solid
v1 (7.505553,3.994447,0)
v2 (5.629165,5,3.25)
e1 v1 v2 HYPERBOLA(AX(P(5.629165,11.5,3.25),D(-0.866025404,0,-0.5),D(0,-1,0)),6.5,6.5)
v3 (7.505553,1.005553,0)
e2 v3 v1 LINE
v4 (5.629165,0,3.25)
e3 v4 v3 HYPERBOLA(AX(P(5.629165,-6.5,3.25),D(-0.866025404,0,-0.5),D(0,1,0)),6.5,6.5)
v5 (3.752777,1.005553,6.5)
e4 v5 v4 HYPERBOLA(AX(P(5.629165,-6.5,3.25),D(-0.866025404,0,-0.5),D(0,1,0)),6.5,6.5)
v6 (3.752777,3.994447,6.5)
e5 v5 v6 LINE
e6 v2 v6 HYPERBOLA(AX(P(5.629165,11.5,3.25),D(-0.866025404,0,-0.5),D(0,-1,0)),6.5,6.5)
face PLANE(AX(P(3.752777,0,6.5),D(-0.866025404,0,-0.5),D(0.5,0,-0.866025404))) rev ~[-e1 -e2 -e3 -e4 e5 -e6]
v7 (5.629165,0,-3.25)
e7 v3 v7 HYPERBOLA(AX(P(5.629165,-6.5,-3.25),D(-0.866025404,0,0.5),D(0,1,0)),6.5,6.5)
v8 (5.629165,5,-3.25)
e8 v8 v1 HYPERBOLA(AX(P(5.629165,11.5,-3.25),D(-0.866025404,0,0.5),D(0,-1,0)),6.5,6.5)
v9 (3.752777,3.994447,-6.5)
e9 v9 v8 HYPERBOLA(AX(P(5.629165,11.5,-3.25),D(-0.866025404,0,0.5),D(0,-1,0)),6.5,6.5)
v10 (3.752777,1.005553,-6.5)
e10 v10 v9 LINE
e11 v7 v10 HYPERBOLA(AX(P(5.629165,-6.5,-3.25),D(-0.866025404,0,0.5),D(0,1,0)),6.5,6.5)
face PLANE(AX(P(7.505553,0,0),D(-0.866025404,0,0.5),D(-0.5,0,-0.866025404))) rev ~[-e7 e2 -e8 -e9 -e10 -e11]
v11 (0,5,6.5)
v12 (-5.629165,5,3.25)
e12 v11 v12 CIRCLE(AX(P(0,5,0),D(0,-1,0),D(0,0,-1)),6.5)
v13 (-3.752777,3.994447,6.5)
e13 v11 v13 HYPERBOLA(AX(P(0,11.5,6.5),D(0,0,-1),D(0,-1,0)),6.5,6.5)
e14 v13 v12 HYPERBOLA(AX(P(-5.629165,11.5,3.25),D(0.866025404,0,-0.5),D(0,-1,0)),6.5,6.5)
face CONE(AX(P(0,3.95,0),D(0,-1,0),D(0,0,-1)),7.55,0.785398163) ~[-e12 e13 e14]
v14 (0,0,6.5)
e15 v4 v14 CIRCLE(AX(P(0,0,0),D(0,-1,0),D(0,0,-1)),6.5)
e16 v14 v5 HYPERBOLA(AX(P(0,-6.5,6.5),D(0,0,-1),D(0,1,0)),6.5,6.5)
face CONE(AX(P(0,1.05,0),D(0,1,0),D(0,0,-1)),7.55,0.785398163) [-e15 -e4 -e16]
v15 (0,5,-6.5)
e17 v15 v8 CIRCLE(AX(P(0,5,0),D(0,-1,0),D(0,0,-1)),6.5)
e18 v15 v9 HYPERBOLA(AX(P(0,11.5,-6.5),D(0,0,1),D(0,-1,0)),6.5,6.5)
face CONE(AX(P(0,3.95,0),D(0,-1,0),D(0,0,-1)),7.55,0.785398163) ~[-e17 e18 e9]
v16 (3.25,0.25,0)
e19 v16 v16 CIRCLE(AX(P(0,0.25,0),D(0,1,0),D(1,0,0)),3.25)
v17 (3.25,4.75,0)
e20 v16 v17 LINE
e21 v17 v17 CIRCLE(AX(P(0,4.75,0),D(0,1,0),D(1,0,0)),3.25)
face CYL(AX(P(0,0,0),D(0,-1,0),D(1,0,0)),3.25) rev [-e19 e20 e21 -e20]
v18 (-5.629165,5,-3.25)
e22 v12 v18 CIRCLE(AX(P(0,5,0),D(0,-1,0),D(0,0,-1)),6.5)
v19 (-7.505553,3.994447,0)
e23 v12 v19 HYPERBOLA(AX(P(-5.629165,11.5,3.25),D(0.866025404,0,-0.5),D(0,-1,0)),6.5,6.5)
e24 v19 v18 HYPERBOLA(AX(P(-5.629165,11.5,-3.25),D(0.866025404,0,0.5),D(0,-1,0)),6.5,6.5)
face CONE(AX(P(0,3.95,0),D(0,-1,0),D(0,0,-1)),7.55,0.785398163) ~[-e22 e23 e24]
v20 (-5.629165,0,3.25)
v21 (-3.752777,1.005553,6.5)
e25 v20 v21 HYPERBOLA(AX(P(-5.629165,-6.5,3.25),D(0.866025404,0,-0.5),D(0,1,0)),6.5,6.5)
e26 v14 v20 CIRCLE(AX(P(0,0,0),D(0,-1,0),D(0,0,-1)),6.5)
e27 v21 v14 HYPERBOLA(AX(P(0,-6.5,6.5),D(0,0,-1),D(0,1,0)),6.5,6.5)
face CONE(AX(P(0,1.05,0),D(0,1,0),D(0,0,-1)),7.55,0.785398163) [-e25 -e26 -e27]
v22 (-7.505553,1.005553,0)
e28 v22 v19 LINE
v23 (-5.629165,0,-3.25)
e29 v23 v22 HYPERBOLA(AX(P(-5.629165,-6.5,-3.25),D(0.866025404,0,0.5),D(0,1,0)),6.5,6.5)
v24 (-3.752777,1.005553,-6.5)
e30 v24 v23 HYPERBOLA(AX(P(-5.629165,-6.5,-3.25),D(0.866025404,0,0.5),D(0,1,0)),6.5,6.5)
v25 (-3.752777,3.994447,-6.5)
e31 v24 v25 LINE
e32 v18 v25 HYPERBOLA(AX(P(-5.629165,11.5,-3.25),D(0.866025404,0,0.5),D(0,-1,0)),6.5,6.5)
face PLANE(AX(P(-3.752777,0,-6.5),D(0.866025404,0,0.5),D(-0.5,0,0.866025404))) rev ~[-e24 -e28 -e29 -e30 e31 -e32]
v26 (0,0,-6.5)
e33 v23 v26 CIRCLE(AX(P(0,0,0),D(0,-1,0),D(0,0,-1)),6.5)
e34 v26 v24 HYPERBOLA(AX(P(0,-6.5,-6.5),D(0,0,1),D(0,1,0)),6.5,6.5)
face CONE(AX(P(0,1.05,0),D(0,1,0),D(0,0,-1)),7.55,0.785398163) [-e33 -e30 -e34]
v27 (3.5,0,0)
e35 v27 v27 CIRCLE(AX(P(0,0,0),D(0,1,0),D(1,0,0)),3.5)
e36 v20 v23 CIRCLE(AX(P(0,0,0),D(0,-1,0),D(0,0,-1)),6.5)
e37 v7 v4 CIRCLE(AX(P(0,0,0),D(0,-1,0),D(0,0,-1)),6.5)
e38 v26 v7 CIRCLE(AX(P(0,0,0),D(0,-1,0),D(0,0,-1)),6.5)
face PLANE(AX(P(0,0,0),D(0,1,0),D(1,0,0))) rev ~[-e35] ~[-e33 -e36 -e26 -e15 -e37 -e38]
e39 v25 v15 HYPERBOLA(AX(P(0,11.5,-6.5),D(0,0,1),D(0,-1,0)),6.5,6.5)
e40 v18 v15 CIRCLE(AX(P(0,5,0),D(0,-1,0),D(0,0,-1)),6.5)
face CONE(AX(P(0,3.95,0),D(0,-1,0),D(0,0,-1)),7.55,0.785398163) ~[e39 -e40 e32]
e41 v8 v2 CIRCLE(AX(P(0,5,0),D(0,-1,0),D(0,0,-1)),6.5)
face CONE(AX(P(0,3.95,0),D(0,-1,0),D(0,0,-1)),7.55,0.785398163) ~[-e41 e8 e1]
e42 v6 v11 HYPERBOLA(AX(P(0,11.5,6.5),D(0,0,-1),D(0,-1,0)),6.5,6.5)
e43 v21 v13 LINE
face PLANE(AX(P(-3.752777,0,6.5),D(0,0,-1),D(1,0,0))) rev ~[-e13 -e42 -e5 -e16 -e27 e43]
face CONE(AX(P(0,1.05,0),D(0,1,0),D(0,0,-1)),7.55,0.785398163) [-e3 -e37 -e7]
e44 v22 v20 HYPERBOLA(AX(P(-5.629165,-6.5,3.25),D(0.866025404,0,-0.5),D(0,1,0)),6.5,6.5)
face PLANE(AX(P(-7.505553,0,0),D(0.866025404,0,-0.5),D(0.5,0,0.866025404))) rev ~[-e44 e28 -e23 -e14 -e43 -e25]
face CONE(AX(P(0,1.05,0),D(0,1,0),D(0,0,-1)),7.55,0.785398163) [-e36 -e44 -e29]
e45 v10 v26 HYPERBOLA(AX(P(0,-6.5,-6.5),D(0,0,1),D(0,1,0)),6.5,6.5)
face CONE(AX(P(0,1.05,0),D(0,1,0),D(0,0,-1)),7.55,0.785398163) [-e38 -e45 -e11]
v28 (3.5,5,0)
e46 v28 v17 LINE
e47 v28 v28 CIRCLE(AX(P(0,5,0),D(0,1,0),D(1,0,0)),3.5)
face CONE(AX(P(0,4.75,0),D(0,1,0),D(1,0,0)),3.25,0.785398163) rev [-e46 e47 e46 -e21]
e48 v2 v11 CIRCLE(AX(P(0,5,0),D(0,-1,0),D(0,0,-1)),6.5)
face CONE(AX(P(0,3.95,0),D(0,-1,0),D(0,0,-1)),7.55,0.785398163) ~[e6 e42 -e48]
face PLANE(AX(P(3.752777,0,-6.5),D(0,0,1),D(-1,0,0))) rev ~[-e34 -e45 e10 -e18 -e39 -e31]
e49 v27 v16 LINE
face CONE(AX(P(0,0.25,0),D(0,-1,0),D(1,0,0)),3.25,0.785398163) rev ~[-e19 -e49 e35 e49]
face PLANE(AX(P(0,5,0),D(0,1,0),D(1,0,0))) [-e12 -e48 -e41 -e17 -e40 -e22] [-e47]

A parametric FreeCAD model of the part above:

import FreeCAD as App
import Part
import Sketcher

V = App.Vector
Q = App.Units.Quantity


def edges_at(feature, points):
    """Names of the edges that pass closest to the given points."""
    edges = feature.Shape.Edges
    near = lambda p: min(range(len(edges)), key=lambda i: edges[i].distToShape(Part.Vertex(*p))[0])
    return sorted({f"Edge{near(p) + 1}" for p in points})


def add_polygon(sketch, points):
    """Adds a closed chain of lines whose ends are joined by coincident constraints."""
    first, n = sketch.GeometryCount, len(points)
    for a, b in zip(points, points[1:] + points[:1]):
        sketch.addGeometry(Part.LineSegment(App.Vector(*a, 0), App.Vector(*b, 0)), False)
    for i in range(n):
        sketch.addConstraint(Sketcher.Constraint("Coincident", first + i, 2, first + (i + 1) % n, 1))

doc = App.newDocument("Part")
params = doc.addObject("Spreadsheet::Sheet", "Params")
for row, (alias, value) in enumerate([
    ("sketch1_diameter", "6.5 mm"),
    ("pad1_length", "5 mm"),
    ("sketch2_width", "2.1 mm"),
    ("groove_angle", "360 deg"),
    ("chamfer_size", "0.25 mm"),
], start=1):
    params.set(f"A{row}", alias)
    params.set(f"B{row}", "=" + value)
    params.setAlias(f"B{row}", alias)

body = doc.addObject("PartDesign::Body", "Body")

sketch1 = body.newObject("Sketcher::SketchObject", "Sketch")
sketch1.AttachmentSupport = (doc.getObject("XZ_Plane"), [""])
sketch1.MapMode = "FlatFace"
add_polygon(sketch1, [(-3.8, 6.5), (3.8, 6.5), (7.5, 0), (3.8, -6.5), (-3.8, -6.5), (-7.5, 0)])
sketch1.addGeometry(Part.Circle(V(0, 0, 0), V(0, 0, 1), 3.2), False)
sketch1.addConstraint(Sketcher.Constraint("Horizontal", 0))
sketch1.addConstraint(Sketcher.Constraint("Horizontal", 3))
sketch1.addConstraint(Sketcher.Constraint("Coincident", 6, 3, -1, 1))
sketch1.addConstraint(Sketcher.Constraint("Symmetric", 0, 2, 3, 2, -1, 1))
sketch1.addConstraint(Sketcher.Constraint("Symmetric", 1, 2, 4, 2, -1, 1))
sketch1.addConstraint(Sketcher.Constraint("PointOnObject", 1, 2, -1))
sketch1.addConstraint(Sketcher.Constraint("Parallel", 2, 5))
sketch1.addConstraint(Sketcher.Constraint("Vertical", 0, 2, 2, 2))
sketch1.addConstraint(Sketcher.Constraint("Diameter", 6, 6.5))
sketch1.addConstraint(Sketcher.Constraint("Angle", 1, Q("-60 deg")))
sketch1.addConstraint(Sketcher.Constraint("DistanceY", 2, 2, 0, 2, 13.0))
sketch1.addConstraint(Sketcher.Constraint("DistanceX", 0, 1, 0, 2, 7.505554))
sketch1.setExpression("Constraints[14]", "Params.sketch1_diameter")
pad1 = body.newObject("PartDesign::Pad", "Pad")
pad1.Profile = sketch1
pad1.setExpression("Length", "Params.pad1_length")
pad1.Reversed = True

sketch2 = body.newObject("Sketcher::SketchObject", "Sketch001")
sketch2.AttachmentSupport = (doc.getObject("YZ_Plane"), [""])
sketch2.MapMode = "FlatFace"
add_polygon(sketch2, [(6, -7.5), (5, -6.5), (4, -7.5)])
add_polygon(sketch2, [(1.1, -7.5), (0, -6.5), (-1.1, -7.5)])
sketch2.addConstraint(Sketcher.Constraint("Horizontal", 2))
sketch2.addConstraint(Sketcher.Constraint("Horizontal", 5))
sketch2.addConstraint(Sketcher.Constraint("PointOnObject", 3, 2, -2))
sketch2.addConstraint(Sketcher.Constraint("Perpendicular", 0, 1))
sketch2.addConstraint(Sketcher.Constraint("Perpendicular", 1, 3))
sketch2.addConstraint(Sketcher.Constraint("Perpendicular", 3, 4))
sketch2.addConstraint(Sketcher.Constraint("Horizontal", 0, 2, 3, 2))
sketch2.addConstraint(Sketcher.Constraint("Horizontal", 2, 2, 4, 2))
sketch2.addConstraint(Sketcher.Constraint("Equal", 0, 1))
sketch2.addConstraint(Sketcher.Constraint("DistanceX", 2, 1, 2, 2, 2.1))
sketch2.addConstraint(Sketcher.Constraint("DistanceX", -1, 1, 0, 2, 5.0))
sketch2.addConstraint(Sketcher.Constraint("DistanceY", 0, 2, -1, 1, 6.5))
sketch2.setExpression("Constraints[15]", "Params.sketch2_width")
groove = body.newObject("PartDesign::Groove", "Groove")
groove.Profile = sketch2
groove.ReferenceAxis = (sketch2, ["H_Axis"])
groove.setExpression("Angle", "Params.groove_angle")
doc.recompute()

chamfer = body.newObject("PartDesign::Chamfer", "Chamfer")
chamfer.Base = (groove, edges_at(groove, [(-3.25, 0, 0), (-3.25, 5, 0)]))
chamfer.setExpression("Size", "Params.chamfer_size")

doc.recompute()
